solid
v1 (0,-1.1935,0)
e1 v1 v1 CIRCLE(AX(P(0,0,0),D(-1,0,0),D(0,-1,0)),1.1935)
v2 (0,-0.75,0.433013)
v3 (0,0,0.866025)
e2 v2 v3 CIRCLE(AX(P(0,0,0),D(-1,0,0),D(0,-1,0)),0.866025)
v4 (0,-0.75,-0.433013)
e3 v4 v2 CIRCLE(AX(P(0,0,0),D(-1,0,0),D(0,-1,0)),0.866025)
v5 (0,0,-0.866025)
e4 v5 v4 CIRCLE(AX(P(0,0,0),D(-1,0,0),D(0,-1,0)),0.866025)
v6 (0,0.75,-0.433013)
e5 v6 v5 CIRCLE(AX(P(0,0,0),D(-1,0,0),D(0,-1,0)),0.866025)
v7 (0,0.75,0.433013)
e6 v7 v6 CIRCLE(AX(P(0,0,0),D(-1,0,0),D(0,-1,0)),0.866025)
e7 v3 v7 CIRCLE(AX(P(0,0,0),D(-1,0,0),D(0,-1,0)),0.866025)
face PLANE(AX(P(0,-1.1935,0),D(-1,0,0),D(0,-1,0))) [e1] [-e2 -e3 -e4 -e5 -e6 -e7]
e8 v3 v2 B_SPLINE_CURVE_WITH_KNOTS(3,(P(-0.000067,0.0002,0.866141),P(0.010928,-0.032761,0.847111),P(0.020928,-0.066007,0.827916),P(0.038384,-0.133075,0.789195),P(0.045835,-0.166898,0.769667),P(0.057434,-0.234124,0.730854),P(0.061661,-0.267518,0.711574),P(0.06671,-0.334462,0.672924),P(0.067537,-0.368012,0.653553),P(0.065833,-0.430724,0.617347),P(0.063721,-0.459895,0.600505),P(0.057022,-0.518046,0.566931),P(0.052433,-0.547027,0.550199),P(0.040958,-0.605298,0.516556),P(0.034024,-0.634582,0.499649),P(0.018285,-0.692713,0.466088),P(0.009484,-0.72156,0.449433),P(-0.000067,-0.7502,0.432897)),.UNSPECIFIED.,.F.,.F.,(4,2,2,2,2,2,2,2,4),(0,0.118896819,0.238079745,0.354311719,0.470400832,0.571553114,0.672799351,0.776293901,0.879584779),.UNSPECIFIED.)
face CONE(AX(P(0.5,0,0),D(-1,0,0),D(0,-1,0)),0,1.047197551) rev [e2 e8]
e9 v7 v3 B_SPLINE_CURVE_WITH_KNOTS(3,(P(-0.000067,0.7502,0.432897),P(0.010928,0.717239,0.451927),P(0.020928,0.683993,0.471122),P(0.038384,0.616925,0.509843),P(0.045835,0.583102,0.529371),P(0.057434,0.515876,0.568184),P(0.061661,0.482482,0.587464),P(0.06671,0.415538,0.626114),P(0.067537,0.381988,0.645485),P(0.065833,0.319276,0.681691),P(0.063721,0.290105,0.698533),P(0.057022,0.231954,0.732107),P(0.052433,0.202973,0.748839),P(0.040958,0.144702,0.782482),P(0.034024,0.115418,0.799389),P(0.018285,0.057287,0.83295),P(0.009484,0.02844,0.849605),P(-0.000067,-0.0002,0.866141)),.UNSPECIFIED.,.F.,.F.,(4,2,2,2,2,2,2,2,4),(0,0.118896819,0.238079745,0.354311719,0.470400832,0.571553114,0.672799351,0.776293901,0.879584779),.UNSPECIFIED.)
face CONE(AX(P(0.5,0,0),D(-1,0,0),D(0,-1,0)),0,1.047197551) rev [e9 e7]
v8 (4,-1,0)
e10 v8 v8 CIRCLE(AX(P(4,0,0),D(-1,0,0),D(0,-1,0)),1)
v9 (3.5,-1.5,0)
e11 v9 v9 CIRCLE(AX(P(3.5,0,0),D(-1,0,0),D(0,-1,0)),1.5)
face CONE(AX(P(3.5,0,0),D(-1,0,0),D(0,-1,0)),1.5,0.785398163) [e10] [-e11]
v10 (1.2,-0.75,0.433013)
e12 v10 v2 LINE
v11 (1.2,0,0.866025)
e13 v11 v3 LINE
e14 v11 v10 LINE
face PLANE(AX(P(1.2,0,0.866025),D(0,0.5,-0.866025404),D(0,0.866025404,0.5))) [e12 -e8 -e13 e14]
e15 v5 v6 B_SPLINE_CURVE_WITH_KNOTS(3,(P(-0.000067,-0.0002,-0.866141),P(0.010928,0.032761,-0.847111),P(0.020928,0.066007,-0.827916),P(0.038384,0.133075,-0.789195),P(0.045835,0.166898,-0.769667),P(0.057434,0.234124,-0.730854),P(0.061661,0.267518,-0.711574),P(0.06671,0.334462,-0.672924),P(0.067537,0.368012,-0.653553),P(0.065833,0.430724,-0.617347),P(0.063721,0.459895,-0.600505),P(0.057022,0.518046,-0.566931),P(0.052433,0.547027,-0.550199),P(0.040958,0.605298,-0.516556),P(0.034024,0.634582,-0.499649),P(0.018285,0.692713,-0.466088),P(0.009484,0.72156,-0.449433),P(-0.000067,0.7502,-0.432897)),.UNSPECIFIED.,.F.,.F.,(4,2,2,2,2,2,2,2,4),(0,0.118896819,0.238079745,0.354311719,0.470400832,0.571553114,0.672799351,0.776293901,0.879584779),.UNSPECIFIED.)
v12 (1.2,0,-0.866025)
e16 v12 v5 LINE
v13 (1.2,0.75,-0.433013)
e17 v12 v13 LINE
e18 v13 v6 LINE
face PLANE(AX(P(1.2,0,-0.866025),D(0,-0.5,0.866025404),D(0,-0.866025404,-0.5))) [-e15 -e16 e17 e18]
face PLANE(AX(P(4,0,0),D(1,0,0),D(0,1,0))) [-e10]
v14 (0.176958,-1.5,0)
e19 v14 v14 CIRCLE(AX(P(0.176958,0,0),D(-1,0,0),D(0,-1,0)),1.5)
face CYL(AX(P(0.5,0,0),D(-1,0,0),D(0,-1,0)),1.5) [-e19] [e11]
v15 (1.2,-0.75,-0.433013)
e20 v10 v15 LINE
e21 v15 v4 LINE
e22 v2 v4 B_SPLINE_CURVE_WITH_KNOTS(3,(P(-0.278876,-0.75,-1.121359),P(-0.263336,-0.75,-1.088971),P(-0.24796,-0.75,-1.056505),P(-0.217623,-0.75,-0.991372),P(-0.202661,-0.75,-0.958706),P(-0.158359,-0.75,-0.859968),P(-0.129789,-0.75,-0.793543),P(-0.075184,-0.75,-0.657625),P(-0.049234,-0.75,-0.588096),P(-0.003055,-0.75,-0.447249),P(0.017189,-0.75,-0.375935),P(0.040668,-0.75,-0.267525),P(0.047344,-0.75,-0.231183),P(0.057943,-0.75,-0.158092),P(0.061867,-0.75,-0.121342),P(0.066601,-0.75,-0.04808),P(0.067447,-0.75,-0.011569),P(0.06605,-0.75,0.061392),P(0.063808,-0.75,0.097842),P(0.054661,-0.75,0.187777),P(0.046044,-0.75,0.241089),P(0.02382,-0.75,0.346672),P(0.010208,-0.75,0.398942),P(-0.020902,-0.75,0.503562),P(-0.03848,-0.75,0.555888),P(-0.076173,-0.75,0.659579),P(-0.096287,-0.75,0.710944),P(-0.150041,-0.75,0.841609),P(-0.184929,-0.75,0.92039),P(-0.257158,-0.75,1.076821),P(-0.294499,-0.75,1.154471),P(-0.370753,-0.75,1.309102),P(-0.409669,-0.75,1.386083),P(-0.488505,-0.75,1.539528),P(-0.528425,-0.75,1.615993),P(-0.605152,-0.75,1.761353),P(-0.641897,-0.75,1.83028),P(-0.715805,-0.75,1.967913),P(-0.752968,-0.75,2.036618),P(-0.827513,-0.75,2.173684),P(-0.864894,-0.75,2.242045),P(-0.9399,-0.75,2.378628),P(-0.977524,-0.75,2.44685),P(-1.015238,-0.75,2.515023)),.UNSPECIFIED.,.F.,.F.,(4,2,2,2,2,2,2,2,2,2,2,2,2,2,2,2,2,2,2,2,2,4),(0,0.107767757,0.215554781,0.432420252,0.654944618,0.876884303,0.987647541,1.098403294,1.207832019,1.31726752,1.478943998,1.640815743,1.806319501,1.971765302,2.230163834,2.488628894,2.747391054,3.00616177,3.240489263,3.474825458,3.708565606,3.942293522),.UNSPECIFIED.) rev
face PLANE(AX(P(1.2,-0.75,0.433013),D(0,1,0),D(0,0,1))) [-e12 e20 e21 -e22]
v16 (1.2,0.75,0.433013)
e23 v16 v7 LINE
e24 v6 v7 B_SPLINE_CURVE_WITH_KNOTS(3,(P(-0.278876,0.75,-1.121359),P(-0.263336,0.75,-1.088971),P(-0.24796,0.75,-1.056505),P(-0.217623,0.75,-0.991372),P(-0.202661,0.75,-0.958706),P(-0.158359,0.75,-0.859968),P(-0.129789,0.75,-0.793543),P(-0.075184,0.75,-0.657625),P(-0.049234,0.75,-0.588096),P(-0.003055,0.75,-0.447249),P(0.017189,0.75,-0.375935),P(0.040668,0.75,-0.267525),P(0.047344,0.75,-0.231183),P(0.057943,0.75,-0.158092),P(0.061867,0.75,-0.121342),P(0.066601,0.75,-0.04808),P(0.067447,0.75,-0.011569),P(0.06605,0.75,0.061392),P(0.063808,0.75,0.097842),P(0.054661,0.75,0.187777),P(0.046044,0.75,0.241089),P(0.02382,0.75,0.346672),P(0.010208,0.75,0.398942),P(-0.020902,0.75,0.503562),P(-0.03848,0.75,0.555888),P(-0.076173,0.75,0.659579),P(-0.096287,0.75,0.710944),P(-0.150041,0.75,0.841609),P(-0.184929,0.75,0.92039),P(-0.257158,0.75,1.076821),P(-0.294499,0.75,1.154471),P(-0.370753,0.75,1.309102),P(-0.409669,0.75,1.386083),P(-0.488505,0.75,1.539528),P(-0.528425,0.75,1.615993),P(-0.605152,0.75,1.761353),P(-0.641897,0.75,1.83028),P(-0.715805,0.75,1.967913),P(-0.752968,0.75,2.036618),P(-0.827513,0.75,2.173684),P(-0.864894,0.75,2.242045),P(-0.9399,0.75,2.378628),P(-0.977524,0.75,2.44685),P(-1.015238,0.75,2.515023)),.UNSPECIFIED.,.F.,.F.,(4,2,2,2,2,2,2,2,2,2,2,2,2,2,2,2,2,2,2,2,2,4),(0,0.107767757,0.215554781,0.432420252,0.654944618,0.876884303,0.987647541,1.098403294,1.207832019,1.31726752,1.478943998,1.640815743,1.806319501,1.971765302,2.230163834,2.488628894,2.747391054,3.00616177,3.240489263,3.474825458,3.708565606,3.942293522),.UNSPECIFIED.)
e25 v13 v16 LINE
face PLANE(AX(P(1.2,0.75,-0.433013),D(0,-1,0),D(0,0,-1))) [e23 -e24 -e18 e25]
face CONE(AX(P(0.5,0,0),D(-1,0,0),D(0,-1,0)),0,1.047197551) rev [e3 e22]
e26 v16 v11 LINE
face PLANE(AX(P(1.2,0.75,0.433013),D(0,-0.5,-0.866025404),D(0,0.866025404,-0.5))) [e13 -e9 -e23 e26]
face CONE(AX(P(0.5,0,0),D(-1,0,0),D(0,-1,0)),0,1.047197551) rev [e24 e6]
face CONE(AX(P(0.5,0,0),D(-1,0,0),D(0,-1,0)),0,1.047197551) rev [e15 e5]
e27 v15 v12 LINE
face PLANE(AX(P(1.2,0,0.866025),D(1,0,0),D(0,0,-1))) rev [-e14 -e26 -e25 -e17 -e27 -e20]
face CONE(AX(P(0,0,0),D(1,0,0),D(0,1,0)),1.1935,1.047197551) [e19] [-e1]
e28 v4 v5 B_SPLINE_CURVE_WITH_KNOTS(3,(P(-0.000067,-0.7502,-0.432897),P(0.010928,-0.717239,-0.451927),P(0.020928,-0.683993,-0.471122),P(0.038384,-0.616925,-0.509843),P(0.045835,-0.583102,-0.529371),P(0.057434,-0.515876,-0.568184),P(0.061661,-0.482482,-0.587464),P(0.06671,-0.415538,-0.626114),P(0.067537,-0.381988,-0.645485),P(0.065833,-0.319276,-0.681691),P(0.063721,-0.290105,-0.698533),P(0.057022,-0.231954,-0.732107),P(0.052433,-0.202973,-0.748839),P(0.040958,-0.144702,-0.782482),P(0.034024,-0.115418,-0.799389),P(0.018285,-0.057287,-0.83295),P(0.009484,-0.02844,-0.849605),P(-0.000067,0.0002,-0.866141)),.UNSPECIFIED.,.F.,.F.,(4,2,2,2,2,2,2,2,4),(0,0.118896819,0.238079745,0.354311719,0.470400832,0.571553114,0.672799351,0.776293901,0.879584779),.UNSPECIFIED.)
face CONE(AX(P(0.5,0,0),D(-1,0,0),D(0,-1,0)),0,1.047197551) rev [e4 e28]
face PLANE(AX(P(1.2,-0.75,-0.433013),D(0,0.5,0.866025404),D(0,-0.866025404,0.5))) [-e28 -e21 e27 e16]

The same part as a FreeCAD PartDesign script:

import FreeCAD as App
import Part
import Sketcher
Q = App.Units.Quantity


def add_polygon(sketch, points):
    """Adds a closed chain of lines whose ends are joined by coincident constraints."""
    first, n = sketch.GeometryCount, len(points)
    for a, b in zip(points, points[1:] + points[:1]):
        sketch.addGeometry(Part.LineSegment(App.Vector(*a, 0), App.Vector(*b, 0)), False)
    for i in range(n):
        sketch.addConstraint(Sketcher.Constraint("Coincident", first + i, 2, first + (i + 1) % n, 1))

doc = App.newDocument("Part")
body = doc.addObject("PartDesign::Body", "Body")

# Sketch on XY plane
sketch1 = doc.addObject("Sketcher::SketchObject", "Sketch")
body.addObject(sketch1)
sketch1.AttachmentSupport = (doc.XY_Plane, [""])
sketch1.MapMode = "FlatFace"
add_polygon(sketch1, [(4, -1), (4, 0), (0.5, 0), (0, -0.866025), (0, -1.1935), (0.176958, -1.5), (3.5, -1.5)])  # lines 0-6
sketch1.addConstraint([
    Sketcher.Constraint("Vertical", 0),
    Sketcher.Constraint("Horizontal", 1),
    Sketcher.Constraint("Vertical", 3),
    Sketcher.Constraint("Horizontal", 5),
    Sketcher.Constraint("PointOnObject", 0, 2, -1),
    Sketcher.Constraint("PointOnObject", 2, 2, -2),
    Sketcher.Constraint("DistanceY", 0, 1, 0, 2, Q("1 mm")),
    Sketcher.Constraint("Angle", 2, Q("-120 deg")),
    Sketcher.Constraint("Angle", 4, Q("-60 deg")),
    Sketcher.Constraint("Angle", 6, Q("45 deg")),
    Sketcher.Constraint("Distance", 2, Q("1 mm")),
    Sketcher.Constraint("DistanceX", 1, 2, 1, 1, Q("3.5 mm")),
    Sketcher.Constraint("DistanceX", 1, 2, 5, 2, Q("3 mm")),
    Sketcher.Constraint("DistanceY", 3, 2, -1, 1, Q("1.1935 mm")),
])
revolution = doc.addObject("PartDesign::Revolution", "Revolution")
body.addObject(revolution)
revolution.Profile = sketch1
revolution.ReferenceAxis = (sketch1, ["H_Axis"])
revolution.Angle = 360

# Sketch on YZ plane
sketch2 = doc.addObject("Sketcher::SketchObject", "Sketch001")
body.addObject(sketch2)
sketch2.AttachmentSupport = (doc.YZ_Plane, [""])
sketch2.MapMode = "FlatFace"
add_polygon(sketch2, [(0, 0.866025), (-0.75, 0.433013), (-0.75, -0.433013), (0, -0.866025), (0.75, -0.433013), (0.75, 0.433013)])  # lines 0-5
sketch2.addConstraint([
    Sketcher.Constraint("Vertical", 1),
    Sketcher.Constraint("Vertical", 4),
    Sketcher.Constraint("Symmetric", 0, 2, 3, 2, -1, 1),
    Sketcher.Constraint("Symmetric", 2, 2, 5, 2, -1, 1),
    Sketcher.Constraint("PointOnObject", 2, 2, -2),
    Sketcher.Constraint("Parallel", 2, 5),
    Sketcher.Constraint("Horizontal", 1, 2, 3, 2),
    Sketcher.Constraint("Angle", 0, Q("-150 deg")),
    Sketcher.Constraint("DistanceX", 1, 2, 3, 2, Q("1.5 mm")),
    Sketcher.Constraint("DistanceY", 1, 2, 1, 1, Q("0.866025 mm")),
])
pocket1 = doc.addObject("PartDesign::Pocket", "Pocket")
body.addObject(pocket1)
pocket1.Profile = sketch2
pocket1.Length = 1.2
pocket1.Reversed = True

doc.recompute()
